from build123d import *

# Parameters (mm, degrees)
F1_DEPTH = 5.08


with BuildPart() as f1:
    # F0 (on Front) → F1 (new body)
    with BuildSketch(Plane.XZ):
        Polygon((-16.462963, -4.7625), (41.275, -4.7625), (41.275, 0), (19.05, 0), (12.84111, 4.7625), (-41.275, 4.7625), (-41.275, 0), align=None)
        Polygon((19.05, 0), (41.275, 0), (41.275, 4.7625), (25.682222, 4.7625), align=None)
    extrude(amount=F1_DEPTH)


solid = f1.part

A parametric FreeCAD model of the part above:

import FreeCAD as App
import Part
import Sketcher

V = App.Vector
Q = App.Units.Quantity

doc = App.newDocument("Part")
body = doc.addObject("PartDesign::Body", "Body")

# Sketch on XZ plane
sketch1 = body.newObject("Sketcher::SketchObject", "Sketch")
sketch1.AttachmentSupport = (doc.getObject("XZ_Plane"), [""])
sketch1.MapMode = "FlatFace"
sketch1.addGeometry([
    Part.LineSegment(V(-16.5, -4.8, 0), V(41.3, -4.8, 0)),  # 0
    Part.LineSegment(V(41.3, -4.8, 0), V(41.3, 4.8, 0)),  # 1
    Part.LineSegment(V(41.3, 4.8, 0), V(25.7, 4.8, 0)),  # 2
    Part.LineSegment(V(25.7, 4.8, 0), V(19.1, 0, 0)),  # 3
    Part.LineSegment(V(19.1, 0, 0), V(12.8, 4.8, 0)),  # 4
    Part.LineSegment(V(12.8, 4.8, 0), V(-41.3, 4.8, 0)),  # 5
    Part.LineSegment(V(-41.3, 4.8, 0), V(-41.3, 0, 0)),  # 6
    Part.LineSegment(V(-41.3, 0, 0), V(-16.5, -4.8, 0)),  # 7
], False)
sketch1.addConstraint([
    Sketcher.Constraint("Coincident", 0, 2, 1, 1),
    Sketcher.Constraint("Coincident", 1, 2, 2, 1),
    Sketcher.Constraint("Coincident", 2, 2, 3, 1),
    Sketcher.Constraint("Coincident", 3, 2, 4, 1),
    Sketcher.Constraint("Coincident", 4, 2, 5, 1),
    Sketcher.Constraint("Coincident", 5, 2, 6, 1),
    Sketcher.Constraint("Coincident", 6, 2, 7, 1),
    Sketcher.Constraint("Coincident", 7, 2, 0, 1),
    Sketcher.Constraint("Horizontal", 0),
    Sketcher.Constraint("Vertical", 1),
    Sketcher.Constraint("Horizontal", 2),
    Sketcher.Constraint("Horizontal", 5),
    Sketcher.Constraint("Vertical", 6),
    Sketcher.Constraint("Symmetric", 0, 2, 5, 2, -1, 1),
    Sketcher.Constraint("PointOnObject", 3, 2, -1),
    Sketcher.Constraint("PointOnObject", 6, 2, -1),
    Sketcher.Constraint("Horizontal", 2, 2, 4, 2),
    Sketcher.Constraint("DistanceY", 1, 1, 1, 2, Q("0.375 in")),
    Sketcher.Constraint("DistanceX", -1, 1, 3, 2, Q("0.75 in")),
    Sketcher.Constraint("DistanceX", 5, 2, 1, 2, Q("3.25 in")),
    Sketcher.Constraint("DistanceX", 5, 2, 5, 1, Q("54.11611 mm")),
    Sketcher.Constraint("DistanceX", 0, 1, 0, 2, Q("57.737963 mm")),
    Sketcher.Constraint("DistanceX", 2, 2, 2, 1, Q("15.592778 mm")),
])
pad1 = body.newObject("PartDesign::Pad", "Pad")
pad1.Profile = sketch1
pad1.Length = Q("0.2 in")

doc.recompute()
